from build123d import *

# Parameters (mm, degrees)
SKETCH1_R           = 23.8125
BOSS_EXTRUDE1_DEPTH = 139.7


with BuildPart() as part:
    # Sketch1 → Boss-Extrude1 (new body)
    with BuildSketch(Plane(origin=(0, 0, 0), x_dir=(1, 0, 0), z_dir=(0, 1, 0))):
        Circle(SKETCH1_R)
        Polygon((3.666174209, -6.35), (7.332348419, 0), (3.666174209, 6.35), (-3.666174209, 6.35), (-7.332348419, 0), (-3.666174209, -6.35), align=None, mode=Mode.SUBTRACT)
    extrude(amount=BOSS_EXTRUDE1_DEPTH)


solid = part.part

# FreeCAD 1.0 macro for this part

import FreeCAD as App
import Part
import Sketcher
Q = App.Units.Quantity


def add_polygon(sketch, points):
    """Adds a closed chain of lines whose ends are joined by coincident constraints."""
    first, n = sketch.GeometryCount, len(points)
    for a, b in zip(points, points[1:] + points[:1]):
        sketch.addGeometry(Part.LineSegment(App.Vector(*a, 0), App.Vector(*b, 0)), False)
    for i in range(n):
        sketch.addConstraint(Sketcher.Constraint("Coincident", first + i, 2, first + (i + 1) % n, 1))

doc = App.newDocument("Part")
body = doc.addObject("PartDesign::Body", "Body")

sketch1 = doc.addObject("Sketcher::SketchObject", "Sketch")
body.addObject(sketch1)
sketch1.AttachmentSupport = (doc.XZ_Plane, [""])
sketch1.MapMode = "FlatFace"
sketch1.addGeometry(Part.Circle(App.Vector(0, 0, 0), App.Vector(0, 0, 1), 24), False)
add_polygon(sketch1, [(7, 0), (4, 6), (-4, 6), (-7, 0), (-4, -6), (4, -6)])
sketch1.addConstraint([
    Sketcher.Constraint("Horizontal", 2),
    Sketcher.Constraint("Horizontal", 5),
    Sketcher.Constraint("Coincident", 0, 3, -1, 1),
    Sketcher.Constraint("Symmetric", 1, 2, 4, 2, -1, 1),
    Sketcher.Constraint("Symmetric", 3, 2, 6, 2, -1, 1),
    Sketcher.Constraint("PointOnObject", 3, 2, -1),
    Sketcher.Constraint("Parallel", 3, 6),
    Sketcher.Constraint("Vertical", 2, 2, 4, 2),
    Sketcher.Constraint("Diameter", 0, Q("1.875 in")),
    Sketcher.Constraint("Angle", 1, Q("120 deg")),
    Sketcher.Constraint("DistanceY", 4, 2, 2, 2, Q("0.5 in")),
    Sketcher.Constraint("DistanceX", 2, 2, 2, 1, Q("7.332348 mm")),
])
pad1 = doc.addObject("PartDesign::Pad", "Pad")
body.addObject(pad1)
pad1.Profile = sketch1
pad1.Length = Q("5.5 in")
pad1.Reversed = True

doc.recompute()
